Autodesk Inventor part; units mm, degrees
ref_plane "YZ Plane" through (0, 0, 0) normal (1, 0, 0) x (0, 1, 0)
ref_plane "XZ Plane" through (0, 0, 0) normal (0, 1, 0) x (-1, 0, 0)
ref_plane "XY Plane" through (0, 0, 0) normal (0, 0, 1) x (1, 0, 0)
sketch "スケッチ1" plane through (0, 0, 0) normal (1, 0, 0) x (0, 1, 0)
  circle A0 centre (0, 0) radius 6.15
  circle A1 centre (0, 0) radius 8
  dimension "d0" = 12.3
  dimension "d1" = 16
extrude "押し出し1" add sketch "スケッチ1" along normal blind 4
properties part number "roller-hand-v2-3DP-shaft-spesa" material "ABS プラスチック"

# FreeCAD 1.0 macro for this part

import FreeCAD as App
import Part
import Sketcher
from FreeCAD import Vector

doc = App.newDocument("Part")
body = doc.addObject("PartDesign::Body", "Body")

# Sketch on YZ plane
sketch1 = body.newObject("Sketcher::SketchObject", "Sketch")
sketch1.AttachmentSupport = (doc.getObject("YZ_Plane"), [""])
sketch1.MapMode = "FlatFace"
sketch1.addGeometry([
    Part.Circle(Vector(0, 0, 0), Vector(0, 0, 1), 8),
    Part.Circle(Vector(0, 0, 0), Vector(0, 0, 1), 6),
], False)
sketch1.addConstraint([
    Sketcher.Constraint("Coincident", 0, 3, -1, 1),
    Sketcher.Constraint("Coincident", 1, 3, -1, 1),
    Sketcher.Constraint("Diameter", 0, 16.0),
    Sketcher.Constraint("Diameter", 1, 12.3),
])
pad1 = body.newObject("PartDesign::Pad", "Pad")
pad1.Profile = sketch1
pad1.Length = 4

doc.recompute()
